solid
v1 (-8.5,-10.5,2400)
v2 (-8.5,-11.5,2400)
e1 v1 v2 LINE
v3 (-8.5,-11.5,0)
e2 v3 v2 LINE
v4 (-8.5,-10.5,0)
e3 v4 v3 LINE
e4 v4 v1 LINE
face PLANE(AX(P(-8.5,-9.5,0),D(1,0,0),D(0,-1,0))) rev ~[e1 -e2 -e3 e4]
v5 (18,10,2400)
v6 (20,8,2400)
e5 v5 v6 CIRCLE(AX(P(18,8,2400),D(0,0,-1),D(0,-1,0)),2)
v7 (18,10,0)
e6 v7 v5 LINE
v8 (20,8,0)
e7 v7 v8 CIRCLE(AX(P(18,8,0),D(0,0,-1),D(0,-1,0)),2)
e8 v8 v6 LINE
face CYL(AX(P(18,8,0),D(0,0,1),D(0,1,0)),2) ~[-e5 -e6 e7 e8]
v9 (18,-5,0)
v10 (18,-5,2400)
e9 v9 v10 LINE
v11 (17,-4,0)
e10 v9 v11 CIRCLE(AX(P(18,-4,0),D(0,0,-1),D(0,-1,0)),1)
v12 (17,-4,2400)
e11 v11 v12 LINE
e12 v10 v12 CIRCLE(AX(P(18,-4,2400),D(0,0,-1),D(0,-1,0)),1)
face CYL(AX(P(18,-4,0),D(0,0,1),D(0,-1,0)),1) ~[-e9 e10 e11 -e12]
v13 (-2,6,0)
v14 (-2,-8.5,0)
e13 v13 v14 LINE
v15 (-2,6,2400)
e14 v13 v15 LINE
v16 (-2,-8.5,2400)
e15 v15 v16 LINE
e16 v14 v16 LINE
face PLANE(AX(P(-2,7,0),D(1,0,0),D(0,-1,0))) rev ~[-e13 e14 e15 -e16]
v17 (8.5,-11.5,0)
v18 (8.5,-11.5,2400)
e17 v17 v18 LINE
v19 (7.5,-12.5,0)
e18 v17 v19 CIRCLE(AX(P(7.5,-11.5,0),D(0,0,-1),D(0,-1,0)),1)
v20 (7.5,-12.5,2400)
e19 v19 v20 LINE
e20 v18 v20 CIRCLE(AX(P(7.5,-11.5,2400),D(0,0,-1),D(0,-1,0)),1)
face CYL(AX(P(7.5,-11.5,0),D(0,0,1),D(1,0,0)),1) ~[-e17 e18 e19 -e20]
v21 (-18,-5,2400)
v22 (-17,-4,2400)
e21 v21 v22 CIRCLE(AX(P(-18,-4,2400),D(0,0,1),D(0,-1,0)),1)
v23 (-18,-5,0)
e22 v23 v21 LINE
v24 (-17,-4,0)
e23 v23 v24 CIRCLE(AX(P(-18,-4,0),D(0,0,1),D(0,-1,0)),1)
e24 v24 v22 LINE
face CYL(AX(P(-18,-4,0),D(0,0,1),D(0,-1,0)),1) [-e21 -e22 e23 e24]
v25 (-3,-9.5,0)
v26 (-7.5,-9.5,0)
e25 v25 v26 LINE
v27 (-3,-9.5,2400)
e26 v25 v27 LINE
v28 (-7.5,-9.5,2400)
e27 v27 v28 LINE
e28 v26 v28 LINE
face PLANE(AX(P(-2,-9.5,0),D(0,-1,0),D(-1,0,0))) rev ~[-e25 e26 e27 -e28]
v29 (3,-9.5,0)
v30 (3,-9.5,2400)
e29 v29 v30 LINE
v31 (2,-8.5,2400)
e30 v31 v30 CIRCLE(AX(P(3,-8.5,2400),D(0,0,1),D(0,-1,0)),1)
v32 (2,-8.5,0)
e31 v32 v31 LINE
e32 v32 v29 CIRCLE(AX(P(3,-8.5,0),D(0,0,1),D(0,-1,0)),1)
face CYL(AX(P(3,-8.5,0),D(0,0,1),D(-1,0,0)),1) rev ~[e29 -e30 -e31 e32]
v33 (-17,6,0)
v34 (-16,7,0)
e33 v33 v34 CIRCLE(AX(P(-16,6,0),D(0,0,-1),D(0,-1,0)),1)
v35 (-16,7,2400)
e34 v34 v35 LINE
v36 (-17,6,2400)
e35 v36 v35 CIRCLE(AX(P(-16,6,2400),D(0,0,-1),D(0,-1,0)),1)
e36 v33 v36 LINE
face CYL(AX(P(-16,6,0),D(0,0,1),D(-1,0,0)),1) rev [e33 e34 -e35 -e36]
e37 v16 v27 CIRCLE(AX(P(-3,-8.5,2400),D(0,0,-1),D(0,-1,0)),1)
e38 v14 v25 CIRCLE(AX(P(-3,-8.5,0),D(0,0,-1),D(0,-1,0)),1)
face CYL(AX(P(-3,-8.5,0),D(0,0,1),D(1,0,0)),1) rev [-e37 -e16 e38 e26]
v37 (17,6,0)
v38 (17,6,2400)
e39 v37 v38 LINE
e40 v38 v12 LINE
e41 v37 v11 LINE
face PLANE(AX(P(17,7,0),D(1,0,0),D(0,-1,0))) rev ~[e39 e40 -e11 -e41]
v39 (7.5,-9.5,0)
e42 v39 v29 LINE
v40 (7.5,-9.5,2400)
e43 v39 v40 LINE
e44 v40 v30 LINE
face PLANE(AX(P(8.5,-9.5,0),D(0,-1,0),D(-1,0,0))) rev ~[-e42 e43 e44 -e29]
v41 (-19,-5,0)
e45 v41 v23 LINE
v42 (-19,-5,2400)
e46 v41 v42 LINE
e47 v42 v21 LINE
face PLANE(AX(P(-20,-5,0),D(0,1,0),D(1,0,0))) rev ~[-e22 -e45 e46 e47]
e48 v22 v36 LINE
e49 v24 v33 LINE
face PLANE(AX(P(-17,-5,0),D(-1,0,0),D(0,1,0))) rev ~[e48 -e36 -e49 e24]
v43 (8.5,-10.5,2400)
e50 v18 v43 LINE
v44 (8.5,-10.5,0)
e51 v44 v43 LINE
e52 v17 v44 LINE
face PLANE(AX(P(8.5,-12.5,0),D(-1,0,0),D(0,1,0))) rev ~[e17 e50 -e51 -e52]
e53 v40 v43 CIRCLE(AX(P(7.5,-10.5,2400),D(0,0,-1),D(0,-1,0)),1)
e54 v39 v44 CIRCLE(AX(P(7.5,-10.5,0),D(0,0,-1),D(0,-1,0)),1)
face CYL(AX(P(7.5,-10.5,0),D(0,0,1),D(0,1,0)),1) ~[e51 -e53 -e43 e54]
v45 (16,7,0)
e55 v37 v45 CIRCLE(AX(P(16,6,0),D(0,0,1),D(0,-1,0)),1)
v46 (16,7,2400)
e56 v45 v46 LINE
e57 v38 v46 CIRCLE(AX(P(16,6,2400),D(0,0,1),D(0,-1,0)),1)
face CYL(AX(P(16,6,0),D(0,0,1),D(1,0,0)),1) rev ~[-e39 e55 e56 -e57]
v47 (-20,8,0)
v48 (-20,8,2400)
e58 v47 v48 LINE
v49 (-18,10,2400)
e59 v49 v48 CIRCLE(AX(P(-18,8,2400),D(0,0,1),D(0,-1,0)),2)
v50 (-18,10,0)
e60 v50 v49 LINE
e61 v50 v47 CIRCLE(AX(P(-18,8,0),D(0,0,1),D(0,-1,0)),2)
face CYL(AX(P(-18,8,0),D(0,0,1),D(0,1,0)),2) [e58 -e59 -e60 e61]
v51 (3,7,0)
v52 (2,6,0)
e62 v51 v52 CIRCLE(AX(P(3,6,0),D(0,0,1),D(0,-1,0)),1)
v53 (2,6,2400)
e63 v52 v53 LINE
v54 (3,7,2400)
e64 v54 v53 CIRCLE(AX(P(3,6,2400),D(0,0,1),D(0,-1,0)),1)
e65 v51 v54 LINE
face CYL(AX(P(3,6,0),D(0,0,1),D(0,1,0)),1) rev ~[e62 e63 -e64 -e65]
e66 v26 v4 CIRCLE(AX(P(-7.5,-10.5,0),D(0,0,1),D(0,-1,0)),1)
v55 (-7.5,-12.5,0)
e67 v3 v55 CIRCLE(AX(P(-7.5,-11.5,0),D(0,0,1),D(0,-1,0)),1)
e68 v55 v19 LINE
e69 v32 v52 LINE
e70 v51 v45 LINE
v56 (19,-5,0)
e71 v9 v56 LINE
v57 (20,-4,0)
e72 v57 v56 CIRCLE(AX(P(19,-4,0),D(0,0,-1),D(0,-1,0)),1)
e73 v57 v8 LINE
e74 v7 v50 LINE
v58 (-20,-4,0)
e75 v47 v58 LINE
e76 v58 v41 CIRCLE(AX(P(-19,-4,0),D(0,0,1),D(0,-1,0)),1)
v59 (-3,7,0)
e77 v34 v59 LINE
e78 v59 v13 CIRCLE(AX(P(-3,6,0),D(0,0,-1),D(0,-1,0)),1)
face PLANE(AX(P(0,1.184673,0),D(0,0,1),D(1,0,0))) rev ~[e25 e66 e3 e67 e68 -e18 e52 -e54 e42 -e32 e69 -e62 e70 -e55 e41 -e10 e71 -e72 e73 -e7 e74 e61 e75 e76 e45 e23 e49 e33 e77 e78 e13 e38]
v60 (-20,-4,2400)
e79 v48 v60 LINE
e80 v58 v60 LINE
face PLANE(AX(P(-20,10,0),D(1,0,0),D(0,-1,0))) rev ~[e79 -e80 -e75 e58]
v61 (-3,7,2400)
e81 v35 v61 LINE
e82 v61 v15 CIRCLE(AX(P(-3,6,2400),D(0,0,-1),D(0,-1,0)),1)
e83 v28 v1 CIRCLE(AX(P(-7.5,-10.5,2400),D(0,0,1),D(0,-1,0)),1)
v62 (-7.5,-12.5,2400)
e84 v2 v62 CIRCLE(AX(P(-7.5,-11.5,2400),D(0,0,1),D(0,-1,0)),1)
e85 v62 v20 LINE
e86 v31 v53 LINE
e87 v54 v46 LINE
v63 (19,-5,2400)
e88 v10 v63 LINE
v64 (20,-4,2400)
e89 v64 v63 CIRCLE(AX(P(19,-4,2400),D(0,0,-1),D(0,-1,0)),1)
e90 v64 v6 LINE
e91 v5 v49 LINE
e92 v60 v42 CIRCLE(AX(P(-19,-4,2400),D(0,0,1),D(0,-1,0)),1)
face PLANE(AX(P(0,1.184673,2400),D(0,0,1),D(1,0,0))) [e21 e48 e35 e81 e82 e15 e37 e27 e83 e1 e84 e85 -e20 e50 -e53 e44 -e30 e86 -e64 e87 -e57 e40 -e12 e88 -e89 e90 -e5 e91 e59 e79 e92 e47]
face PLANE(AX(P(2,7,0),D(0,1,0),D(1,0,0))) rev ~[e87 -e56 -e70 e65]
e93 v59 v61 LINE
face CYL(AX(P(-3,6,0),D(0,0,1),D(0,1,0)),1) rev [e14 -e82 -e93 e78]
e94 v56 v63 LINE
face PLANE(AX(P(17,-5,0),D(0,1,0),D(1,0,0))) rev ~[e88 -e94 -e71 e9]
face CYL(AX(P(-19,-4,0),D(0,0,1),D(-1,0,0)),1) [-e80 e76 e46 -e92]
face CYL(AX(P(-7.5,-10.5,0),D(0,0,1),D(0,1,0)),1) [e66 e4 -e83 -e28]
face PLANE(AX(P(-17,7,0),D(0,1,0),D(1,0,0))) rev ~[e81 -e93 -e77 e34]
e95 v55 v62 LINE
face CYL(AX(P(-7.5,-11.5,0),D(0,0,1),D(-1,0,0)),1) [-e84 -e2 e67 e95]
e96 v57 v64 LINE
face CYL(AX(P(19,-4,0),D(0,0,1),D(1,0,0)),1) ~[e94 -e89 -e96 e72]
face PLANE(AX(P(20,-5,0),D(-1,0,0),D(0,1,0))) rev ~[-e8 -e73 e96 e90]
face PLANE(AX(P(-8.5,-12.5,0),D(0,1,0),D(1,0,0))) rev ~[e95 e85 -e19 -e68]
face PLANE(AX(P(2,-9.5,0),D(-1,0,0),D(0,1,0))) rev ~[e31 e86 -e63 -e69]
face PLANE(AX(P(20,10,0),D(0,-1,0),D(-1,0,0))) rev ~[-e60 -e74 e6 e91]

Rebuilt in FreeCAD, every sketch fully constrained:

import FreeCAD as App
import Part
import Sketcher
from FreeCAD import Vector
Q = App.Units.Quantity


def edges_at(feature, points):
    """Names of the edges that pass closest to the given points."""
    edges = feature.Shape.Edges
    near = lambda p: min(range(len(edges)), key=lambda i: edges[i].distToShape(Part.Vertex(*p))[0])
    return sorted({f"Edge{near(p) + 1}" for p in points})


def add_polygon(sketch, points):
    """Adds a closed chain of lines whose ends are joined by coincident constraints."""
    first, n = sketch.GeometryCount, len(points)
    for a, b in zip(points, points[1:] + points[:1]):
        sketch.addGeometry(Part.LineSegment(App.Vector(*a, 0), App.Vector(*b, 0)), False)
    for i in range(n):
        sketch.addConstraint(Sketcher.Constraint("Coincident", first + i, 2, first + (i + 1) % n, 1))

doc = App.newDocument("Part")
body = doc.addObject("PartDesign::Body", "Body")

sketch1 = body.newObject("Sketcher::SketchObject", "Sketch")
sketch1.AttachmentSupport = (doc.getObject("XY_Plane"), [""])
sketch1.MapMode = "FlatFace"
add_polygon(sketch1, [(20, 10), (-20, 10), (-20, -5), (-17, -5), (-17, 7), (-2, 7), (-2, -9.5), (-8.5, -9.5), (-8.5, -12.5), (8.5, -12.5), (8.5, -9.5), (2, -9.5), (2, 7), (17, 7), (17, -5), (20, -5)])
sketch1.addConstraint([
    Sketcher.Constraint("Horizontal", 0),
    Sketcher.Constraint("Vertical", 1),
    Sketcher.Constraint("Horizontal", 2),
    Sketcher.Constraint("Vertical", 3),
    Sketcher.Constraint("Horizontal", 4),
    Sketcher.Constraint("Vertical", 5),
    Sketcher.Constraint("Horizontal", 6),
    Sketcher.Constraint("Vertical", 7),
    Sketcher.Constraint("Horizontal", 8),
    Sketcher.Constraint("Vertical", 9),
    Sketcher.Constraint("Horizontal", 10),
    Sketcher.Constraint("Vertical", 11),
    Sketcher.Constraint("Horizontal", 12),
    Sketcher.Constraint("Vertical", 13),
    Sketcher.Constraint("Horizontal", 14),
    Sketcher.Constraint("Vertical", 15),
    Sketcher.Constraint("Symmetric", 6, 2, 9, 2, -2),
    Sketcher.Constraint("Symmetric", 4, 2, 11, 2, -2),
    Sketcher.Constraint("Symmetric", 2, 2, 13, 2, -2),
    Sketcher.Constraint("Equal", 2, 14),
    Sketcher.Constraint("Equal", 12, 1),
    Sketcher.Constraint("Equal", 14, 7),
    Sketcher.Constraint("DistanceX", 0, 2, 0, 1, Q("40 mm")),
    Sketcher.Constraint("DistanceX", 2, 1, 2, 2, Q("3 mm")),
    Sketcher.Constraint("DistanceX", 4, 1, 4, 2, Q("15 mm")),
    Sketcher.Constraint("DistanceX", 8, 1, 8, 2, Q("17 mm")),
    Sketcher.Constraint("DistanceY", 3, 1, 3, 2, Q("12 mm")),
    Sketcher.Constraint("DistanceY", 5, 2, 5, 1, Q("16.5 mm")),
    Sketcher.Constraint("DistanceY", -1, 1, 0, 2, Q("10 mm")),
])
pad1 = body.newObject("PartDesign::Pad", "Pad")
pad1.Profile = sketch1
pad1.Length = 2400
doc.recompute()

fillet = body.newObject("PartDesign::Fillet", "Fillet")
fillet.Base = (pad1, edges_at(pad1, [(-20, 10, 1200), (20, 10, 1200)]))
fillet.Radius = 2
doc.recompute()

fillet2 = body.newObject("PartDesign::Fillet", "Fillet001")
fillet2.Base = (fillet, edges_at(fillet, [
    (-20, -5, 1200),
    (-17, -5, 1200),
    (-17, 7, 1200),
    (-8.5, -12.5, 1200),
    (8.5, -12.5, 1200),
    (8.5, -9.5, 1200),
    (2, 7, 1200),
    (17, -5, 1200),
    (20, -5, 1200),
    (17, 7, 1200),
    (-2, 7, 1200),
    (-8.5, -9.5, 1200),
    (-2, -9.5, 1200),
    (2, -9.5, 1200),
]))
fillet2.Radius = 1

doc.recompute()
